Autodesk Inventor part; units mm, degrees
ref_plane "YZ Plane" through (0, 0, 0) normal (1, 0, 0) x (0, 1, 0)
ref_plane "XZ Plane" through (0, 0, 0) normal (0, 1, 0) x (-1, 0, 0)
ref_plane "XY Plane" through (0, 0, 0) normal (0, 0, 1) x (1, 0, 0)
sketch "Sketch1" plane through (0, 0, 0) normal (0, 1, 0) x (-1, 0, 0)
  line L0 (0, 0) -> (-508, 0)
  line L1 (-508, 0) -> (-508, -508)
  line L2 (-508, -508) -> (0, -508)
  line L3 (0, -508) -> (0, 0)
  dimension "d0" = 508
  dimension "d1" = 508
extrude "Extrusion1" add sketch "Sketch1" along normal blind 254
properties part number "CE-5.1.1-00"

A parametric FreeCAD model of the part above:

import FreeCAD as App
import Part
import Sketcher
Q = App.Units.Quantity

doc = App.newDocument("Part")
body = doc.addObject("PartDesign::Body", "Body")

# Sketch on XZ plane
sketch1 = doc.addObject("Sketcher::SketchObject", "Sketch")
body.addObject(sketch1)
sketch1.AttachmentSupport = (doc.XZ_Plane, [""])
sketch1.MapMode = "FlatFace"
sketch1.addGeometry(Part.LineSegment(App.Vector(0, -508, 0), App.Vector(0, 0, 0)), False)
sketch1.addGeometry(Part.LineSegment(App.Vector(0, 0, 0), App.Vector(508, 0, 0)), False)
sketch1.addGeometry(Part.LineSegment(App.Vector(508, 0, 0), App.Vector(508, -508, 0)), False)
sketch1.addGeometry(Part.LineSegment(App.Vector(508, -508, 0), App.Vector(0, -508, 0)), False)
sketch1.addConstraint(Sketcher.Constraint("Coincident", 0, 2, 1, 1))
sketch1.addConstraint(Sketcher.Constraint("Coincident", 1, 2, 2, 1))
sketch1.addConstraint(Sketcher.Constraint("Coincident", 2, 2, 3, 1))
sketch1.addConstraint(Sketcher.Constraint("Coincident", 3, 2, 0, 1))
sketch1.addConstraint(Sketcher.Constraint("Vertical", 0))
sketch1.addConstraint(Sketcher.Constraint("Horizontal", 1))
sketch1.addConstraint(Sketcher.Constraint("Vertical", 2))
sketch1.addConstraint(Sketcher.Constraint("Horizontal", 3))
sketch1.addConstraint(Sketcher.Constraint("Coincident", 0, 2, -1, 1))
sketch1.addConstraint(Sketcher.Constraint("Equal", 3, 0))
sketch1.addConstraint(Sketcher.Constraint("DistanceX", 1, 1, 1, 2, Q("20 in")))
pad1 = doc.addObject("PartDesign::Pad", "Pad")
body.addObject(pad1)
pad1.Profile = sketch1
pad1.Length = Q("10 in")
pad1.Reversed = True

doc.recompute()
